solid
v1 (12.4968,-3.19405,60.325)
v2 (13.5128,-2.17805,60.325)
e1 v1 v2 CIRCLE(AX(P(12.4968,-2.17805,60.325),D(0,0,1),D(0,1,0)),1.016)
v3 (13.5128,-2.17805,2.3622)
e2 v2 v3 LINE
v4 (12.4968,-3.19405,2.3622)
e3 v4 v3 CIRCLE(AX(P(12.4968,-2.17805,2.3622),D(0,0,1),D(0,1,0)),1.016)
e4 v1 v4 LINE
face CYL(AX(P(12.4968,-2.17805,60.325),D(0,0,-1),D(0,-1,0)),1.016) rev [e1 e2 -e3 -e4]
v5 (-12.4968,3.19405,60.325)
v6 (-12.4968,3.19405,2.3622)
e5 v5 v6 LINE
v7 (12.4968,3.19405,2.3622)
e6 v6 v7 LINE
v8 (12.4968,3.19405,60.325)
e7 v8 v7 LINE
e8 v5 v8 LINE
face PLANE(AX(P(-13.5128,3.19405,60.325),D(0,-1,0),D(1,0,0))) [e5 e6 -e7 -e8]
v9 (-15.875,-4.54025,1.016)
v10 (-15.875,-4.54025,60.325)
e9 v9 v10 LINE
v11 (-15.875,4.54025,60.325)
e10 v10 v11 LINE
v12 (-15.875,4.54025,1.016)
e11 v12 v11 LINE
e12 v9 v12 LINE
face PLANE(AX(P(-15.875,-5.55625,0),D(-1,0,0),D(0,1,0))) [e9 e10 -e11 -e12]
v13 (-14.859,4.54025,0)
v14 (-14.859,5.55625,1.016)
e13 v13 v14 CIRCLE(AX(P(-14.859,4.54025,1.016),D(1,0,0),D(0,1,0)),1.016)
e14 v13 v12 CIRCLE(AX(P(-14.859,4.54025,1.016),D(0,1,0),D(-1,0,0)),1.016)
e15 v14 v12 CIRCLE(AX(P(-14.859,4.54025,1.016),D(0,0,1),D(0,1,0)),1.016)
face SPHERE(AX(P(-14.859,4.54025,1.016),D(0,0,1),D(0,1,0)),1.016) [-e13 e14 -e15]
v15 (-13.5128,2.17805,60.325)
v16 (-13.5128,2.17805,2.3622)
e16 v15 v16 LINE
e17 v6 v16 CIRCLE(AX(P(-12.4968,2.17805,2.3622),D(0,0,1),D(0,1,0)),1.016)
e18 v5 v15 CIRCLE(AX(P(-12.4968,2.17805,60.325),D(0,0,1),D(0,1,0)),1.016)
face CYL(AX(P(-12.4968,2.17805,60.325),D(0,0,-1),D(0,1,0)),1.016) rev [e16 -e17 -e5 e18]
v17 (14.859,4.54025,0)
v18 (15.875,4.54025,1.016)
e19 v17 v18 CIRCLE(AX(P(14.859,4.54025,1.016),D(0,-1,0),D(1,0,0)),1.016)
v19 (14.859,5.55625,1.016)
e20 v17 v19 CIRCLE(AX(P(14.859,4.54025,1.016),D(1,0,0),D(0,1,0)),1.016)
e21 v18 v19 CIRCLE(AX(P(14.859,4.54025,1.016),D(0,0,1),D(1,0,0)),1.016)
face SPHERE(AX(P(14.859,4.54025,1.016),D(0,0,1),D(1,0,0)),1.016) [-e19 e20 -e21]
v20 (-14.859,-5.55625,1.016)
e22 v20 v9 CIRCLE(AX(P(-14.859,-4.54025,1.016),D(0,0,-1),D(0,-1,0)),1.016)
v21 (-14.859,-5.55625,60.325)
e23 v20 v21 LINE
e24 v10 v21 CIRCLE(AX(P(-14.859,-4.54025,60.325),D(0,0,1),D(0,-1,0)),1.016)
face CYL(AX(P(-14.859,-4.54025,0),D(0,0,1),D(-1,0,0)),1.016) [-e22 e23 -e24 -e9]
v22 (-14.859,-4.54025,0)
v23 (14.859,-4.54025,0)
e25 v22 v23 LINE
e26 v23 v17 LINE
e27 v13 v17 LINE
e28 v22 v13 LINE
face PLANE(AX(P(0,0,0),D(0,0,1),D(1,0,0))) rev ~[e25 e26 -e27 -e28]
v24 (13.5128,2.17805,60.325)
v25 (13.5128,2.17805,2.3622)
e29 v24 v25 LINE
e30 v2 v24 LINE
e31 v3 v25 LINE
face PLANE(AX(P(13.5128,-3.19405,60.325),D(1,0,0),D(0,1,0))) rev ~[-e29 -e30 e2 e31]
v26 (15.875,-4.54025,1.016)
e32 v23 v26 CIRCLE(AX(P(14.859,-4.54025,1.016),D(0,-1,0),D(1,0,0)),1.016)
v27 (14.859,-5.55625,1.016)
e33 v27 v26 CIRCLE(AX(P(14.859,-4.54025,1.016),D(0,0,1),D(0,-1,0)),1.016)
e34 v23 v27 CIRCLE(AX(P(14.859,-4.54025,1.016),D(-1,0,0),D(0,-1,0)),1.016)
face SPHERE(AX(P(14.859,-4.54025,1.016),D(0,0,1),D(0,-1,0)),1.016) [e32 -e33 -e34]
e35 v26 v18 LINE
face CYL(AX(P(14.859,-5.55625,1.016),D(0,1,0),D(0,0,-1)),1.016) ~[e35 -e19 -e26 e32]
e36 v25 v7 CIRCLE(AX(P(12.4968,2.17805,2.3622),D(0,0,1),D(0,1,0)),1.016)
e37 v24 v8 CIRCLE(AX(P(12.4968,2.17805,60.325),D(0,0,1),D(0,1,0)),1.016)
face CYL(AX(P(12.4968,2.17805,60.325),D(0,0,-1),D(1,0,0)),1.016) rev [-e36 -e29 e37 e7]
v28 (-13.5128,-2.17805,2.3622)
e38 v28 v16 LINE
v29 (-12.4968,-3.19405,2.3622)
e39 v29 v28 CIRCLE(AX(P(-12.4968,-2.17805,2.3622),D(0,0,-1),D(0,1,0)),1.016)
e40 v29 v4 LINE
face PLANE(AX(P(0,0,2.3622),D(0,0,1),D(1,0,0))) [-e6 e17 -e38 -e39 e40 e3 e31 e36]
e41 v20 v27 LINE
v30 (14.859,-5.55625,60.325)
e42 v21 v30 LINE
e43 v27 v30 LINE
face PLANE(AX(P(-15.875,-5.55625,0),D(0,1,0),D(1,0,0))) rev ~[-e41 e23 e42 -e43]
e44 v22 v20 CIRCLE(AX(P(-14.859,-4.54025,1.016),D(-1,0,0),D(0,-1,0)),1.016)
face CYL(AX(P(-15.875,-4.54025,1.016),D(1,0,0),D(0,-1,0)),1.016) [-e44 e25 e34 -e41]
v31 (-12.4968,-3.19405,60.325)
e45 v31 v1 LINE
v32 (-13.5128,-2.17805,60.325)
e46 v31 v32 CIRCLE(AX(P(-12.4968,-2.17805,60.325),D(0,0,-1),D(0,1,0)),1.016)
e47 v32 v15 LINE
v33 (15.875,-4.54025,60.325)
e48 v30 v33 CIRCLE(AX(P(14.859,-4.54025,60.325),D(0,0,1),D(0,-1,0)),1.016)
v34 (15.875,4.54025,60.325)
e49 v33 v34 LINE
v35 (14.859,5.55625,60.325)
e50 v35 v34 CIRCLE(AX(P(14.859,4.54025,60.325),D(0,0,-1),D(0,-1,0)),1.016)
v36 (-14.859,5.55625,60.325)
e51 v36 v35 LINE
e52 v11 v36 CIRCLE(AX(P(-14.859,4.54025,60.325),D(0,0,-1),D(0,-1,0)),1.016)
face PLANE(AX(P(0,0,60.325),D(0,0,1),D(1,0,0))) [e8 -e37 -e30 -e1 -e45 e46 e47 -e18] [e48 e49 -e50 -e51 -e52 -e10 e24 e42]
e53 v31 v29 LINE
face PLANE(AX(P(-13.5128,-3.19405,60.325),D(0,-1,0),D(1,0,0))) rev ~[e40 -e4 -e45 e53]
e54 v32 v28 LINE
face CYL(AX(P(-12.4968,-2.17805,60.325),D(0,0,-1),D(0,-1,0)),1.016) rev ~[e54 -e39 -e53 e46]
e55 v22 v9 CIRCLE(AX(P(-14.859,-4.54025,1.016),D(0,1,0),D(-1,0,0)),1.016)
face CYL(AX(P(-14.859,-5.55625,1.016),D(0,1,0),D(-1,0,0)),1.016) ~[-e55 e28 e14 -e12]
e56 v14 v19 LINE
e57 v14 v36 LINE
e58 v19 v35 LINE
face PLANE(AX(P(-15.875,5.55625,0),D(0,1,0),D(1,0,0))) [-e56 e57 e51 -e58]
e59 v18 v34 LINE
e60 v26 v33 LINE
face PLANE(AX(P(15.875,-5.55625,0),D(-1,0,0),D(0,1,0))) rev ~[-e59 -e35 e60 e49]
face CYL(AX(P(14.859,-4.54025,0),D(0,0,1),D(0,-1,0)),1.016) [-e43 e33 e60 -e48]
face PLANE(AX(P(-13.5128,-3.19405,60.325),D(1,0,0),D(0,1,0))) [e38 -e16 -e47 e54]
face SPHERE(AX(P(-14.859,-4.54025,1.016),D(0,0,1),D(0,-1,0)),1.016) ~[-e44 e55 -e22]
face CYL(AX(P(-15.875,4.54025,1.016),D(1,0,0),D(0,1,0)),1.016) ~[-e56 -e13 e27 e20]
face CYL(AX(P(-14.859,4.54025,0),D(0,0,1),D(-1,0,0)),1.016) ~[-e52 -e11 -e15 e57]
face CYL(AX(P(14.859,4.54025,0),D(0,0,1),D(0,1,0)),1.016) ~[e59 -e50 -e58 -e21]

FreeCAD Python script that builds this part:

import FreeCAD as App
import Part
import Sketcher
Q = App.Units.Quantity


def edges_at(feature, points):
    """Names of the edges that pass closest to the given points."""
    edges = feature.Shape.Edges
    near = lambda p: min(range(len(edges)), key=lambda i: edges[i].distToShape(Part.Vertex(*p))[0])
    return sorted({f"Edge{near(p) + 1}" for p in points})

doc = App.newDocument("Part")
body = doc.addObject("PartDesign::Body", "Body")

sketch1 = doc.addObject("Sketcher::SketchObject", "Sketch")
body.addObject(sketch1)
sketch1.AttachmentSupport = (doc.XY_Plane, [""])
sketch1.MapMode = "FlatFace"
sketch1.addGeometry(Part.LineSegment(App.Vector(-16, 6, 0), App.Vector(-16, -6, 0)), False)
sketch1.addGeometry(Part.LineSegment(App.Vector(-16, -6, 0), App.Vector(16, -6, 0)), False)
sketch1.addGeometry(Part.LineSegment(App.Vector(16, -6, 0), App.Vector(16, 6, 0)), False)
sketch1.addGeometry(Part.LineSegment(App.Vector(16, 6, 0), App.Vector(-16, 6, 0)), False)
sketch1.addConstraint(Sketcher.Constraint("Coincident", 0, 2, 1, 1))
sketch1.addConstraint(Sketcher.Constraint("Coincident", 1, 2, 2, 1))
sketch1.addConstraint(Sketcher.Constraint("Coincident", 2, 2, 3, 1))
sketch1.addConstraint(Sketcher.Constraint("Coincident", 3, 2, 0, 1))
sketch1.addConstraint(Sketcher.Constraint("Vertical", 0))
sketch1.addConstraint(Sketcher.Constraint("Horizontal", 1))
sketch1.addConstraint(Sketcher.Constraint("Vertical", 2))
sketch1.addConstraint(Sketcher.Constraint("Horizontal", 3))
sketch1.addConstraint(Sketcher.Constraint("Symmetric", 0, 2, 2, 2, -1, 1))
sketch1.addConstraint(Sketcher.Constraint("DistanceX", 1, 1, 1, 2, Q("1.25 in")))
sketch1.addConstraint(Sketcher.Constraint("DistanceY", 0, 2, 0, 1, Q("0.4375 in")))
pad1 = doc.addObject("PartDesign::Pad", "Pad")
body.addObject(pad1)
pad1.Profile = sketch1
pad1.Length = Q("2.375 in")

sketch2 = doc.addObject("Sketcher::SketchObject", "Sketch001")
body.addObject(sketch2)
sketch2.AttachmentSupport = (doc.XY_Plane, [""])
sketch2.MapMode = "FlatFace"
sketch2.AttachmentOffset = App.Placement(App.Vector(0, 0, 2.375 * 25.4), App.Rotation())
sketch2.addGeometry(Part.LineSegment(App.Vector(-14, 3, 0), App.Vector(-14, -3, 0)), False)
sketch2.addGeometry(Part.LineSegment(App.Vector(-14, -3, 0), App.Vector(14, -3, 0)), False)
sketch2.addGeometry(Part.LineSegment(App.Vector(14, -3, 0), App.Vector(14, 3, 0)), False)
sketch2.addGeometry(Part.LineSegment(App.Vector(14, 3, 0), App.Vector(-14, 3, 0)), False)
sketch2.addConstraint(Sketcher.Constraint("Coincident", 0, 2, 1, 1))
sketch2.addConstraint(Sketcher.Constraint("Coincident", 1, 2, 2, 1))
sketch2.addConstraint(Sketcher.Constraint("Coincident", 2, 2, 3, 1))
sketch2.addConstraint(Sketcher.Constraint("Coincident", 3, 2, 0, 1))
sketch2.addConstraint(Sketcher.Constraint("Vertical", 0))
sketch2.addConstraint(Sketcher.Constraint("Horizontal", 1))
sketch2.addConstraint(Sketcher.Constraint("Vertical", 2))
sketch2.addConstraint(Sketcher.Constraint("Horizontal", 3))
sketch2.addConstraint(Sketcher.Constraint("Symmetric", 0, 2, 2, 2, -1, 1))
sketch2.addConstraint(Sketcher.Constraint("DistanceX", 1, 1, 1, 2, Q("1.064 in")))
sketch2.addConstraint(Sketcher.Constraint("DistanceY", 0, 2, 0, 1, Q("0.2515 in")))
pocket1 = doc.addObject("PartDesign::Pocket", "Pocket")
body.addObject(pocket1)
pocket1.Profile = sketch2
pocket1.Length = Q("2.282 in")
doc.recompute()

fillet = doc.addObject("PartDesign::Fillet", "Fillet")
body.addObject(fillet)
fillet.Base = (pocket1, edges_at(pocket1, [
    (-15.875, -5.556, 30.163),
    (15.875, -5.556, 30.163),
    (15.875, 5.556, 30.163),
    (-15.875, 5.556, 30.163),
    (13.513, 3.194, 31.344),
    (-13.513, 3.194, 31.344),
    (-13.513, -3.194, 31.344),
    (13.513, -3.194, 31.344),
    (0, -5.556, 0),
    (15.875, 0, 0),
    (0, 5.556, 0),
    (-15.875, 0, 0),
]))
fillet.Radius = Q("0.04 in")

doc.recompute()
